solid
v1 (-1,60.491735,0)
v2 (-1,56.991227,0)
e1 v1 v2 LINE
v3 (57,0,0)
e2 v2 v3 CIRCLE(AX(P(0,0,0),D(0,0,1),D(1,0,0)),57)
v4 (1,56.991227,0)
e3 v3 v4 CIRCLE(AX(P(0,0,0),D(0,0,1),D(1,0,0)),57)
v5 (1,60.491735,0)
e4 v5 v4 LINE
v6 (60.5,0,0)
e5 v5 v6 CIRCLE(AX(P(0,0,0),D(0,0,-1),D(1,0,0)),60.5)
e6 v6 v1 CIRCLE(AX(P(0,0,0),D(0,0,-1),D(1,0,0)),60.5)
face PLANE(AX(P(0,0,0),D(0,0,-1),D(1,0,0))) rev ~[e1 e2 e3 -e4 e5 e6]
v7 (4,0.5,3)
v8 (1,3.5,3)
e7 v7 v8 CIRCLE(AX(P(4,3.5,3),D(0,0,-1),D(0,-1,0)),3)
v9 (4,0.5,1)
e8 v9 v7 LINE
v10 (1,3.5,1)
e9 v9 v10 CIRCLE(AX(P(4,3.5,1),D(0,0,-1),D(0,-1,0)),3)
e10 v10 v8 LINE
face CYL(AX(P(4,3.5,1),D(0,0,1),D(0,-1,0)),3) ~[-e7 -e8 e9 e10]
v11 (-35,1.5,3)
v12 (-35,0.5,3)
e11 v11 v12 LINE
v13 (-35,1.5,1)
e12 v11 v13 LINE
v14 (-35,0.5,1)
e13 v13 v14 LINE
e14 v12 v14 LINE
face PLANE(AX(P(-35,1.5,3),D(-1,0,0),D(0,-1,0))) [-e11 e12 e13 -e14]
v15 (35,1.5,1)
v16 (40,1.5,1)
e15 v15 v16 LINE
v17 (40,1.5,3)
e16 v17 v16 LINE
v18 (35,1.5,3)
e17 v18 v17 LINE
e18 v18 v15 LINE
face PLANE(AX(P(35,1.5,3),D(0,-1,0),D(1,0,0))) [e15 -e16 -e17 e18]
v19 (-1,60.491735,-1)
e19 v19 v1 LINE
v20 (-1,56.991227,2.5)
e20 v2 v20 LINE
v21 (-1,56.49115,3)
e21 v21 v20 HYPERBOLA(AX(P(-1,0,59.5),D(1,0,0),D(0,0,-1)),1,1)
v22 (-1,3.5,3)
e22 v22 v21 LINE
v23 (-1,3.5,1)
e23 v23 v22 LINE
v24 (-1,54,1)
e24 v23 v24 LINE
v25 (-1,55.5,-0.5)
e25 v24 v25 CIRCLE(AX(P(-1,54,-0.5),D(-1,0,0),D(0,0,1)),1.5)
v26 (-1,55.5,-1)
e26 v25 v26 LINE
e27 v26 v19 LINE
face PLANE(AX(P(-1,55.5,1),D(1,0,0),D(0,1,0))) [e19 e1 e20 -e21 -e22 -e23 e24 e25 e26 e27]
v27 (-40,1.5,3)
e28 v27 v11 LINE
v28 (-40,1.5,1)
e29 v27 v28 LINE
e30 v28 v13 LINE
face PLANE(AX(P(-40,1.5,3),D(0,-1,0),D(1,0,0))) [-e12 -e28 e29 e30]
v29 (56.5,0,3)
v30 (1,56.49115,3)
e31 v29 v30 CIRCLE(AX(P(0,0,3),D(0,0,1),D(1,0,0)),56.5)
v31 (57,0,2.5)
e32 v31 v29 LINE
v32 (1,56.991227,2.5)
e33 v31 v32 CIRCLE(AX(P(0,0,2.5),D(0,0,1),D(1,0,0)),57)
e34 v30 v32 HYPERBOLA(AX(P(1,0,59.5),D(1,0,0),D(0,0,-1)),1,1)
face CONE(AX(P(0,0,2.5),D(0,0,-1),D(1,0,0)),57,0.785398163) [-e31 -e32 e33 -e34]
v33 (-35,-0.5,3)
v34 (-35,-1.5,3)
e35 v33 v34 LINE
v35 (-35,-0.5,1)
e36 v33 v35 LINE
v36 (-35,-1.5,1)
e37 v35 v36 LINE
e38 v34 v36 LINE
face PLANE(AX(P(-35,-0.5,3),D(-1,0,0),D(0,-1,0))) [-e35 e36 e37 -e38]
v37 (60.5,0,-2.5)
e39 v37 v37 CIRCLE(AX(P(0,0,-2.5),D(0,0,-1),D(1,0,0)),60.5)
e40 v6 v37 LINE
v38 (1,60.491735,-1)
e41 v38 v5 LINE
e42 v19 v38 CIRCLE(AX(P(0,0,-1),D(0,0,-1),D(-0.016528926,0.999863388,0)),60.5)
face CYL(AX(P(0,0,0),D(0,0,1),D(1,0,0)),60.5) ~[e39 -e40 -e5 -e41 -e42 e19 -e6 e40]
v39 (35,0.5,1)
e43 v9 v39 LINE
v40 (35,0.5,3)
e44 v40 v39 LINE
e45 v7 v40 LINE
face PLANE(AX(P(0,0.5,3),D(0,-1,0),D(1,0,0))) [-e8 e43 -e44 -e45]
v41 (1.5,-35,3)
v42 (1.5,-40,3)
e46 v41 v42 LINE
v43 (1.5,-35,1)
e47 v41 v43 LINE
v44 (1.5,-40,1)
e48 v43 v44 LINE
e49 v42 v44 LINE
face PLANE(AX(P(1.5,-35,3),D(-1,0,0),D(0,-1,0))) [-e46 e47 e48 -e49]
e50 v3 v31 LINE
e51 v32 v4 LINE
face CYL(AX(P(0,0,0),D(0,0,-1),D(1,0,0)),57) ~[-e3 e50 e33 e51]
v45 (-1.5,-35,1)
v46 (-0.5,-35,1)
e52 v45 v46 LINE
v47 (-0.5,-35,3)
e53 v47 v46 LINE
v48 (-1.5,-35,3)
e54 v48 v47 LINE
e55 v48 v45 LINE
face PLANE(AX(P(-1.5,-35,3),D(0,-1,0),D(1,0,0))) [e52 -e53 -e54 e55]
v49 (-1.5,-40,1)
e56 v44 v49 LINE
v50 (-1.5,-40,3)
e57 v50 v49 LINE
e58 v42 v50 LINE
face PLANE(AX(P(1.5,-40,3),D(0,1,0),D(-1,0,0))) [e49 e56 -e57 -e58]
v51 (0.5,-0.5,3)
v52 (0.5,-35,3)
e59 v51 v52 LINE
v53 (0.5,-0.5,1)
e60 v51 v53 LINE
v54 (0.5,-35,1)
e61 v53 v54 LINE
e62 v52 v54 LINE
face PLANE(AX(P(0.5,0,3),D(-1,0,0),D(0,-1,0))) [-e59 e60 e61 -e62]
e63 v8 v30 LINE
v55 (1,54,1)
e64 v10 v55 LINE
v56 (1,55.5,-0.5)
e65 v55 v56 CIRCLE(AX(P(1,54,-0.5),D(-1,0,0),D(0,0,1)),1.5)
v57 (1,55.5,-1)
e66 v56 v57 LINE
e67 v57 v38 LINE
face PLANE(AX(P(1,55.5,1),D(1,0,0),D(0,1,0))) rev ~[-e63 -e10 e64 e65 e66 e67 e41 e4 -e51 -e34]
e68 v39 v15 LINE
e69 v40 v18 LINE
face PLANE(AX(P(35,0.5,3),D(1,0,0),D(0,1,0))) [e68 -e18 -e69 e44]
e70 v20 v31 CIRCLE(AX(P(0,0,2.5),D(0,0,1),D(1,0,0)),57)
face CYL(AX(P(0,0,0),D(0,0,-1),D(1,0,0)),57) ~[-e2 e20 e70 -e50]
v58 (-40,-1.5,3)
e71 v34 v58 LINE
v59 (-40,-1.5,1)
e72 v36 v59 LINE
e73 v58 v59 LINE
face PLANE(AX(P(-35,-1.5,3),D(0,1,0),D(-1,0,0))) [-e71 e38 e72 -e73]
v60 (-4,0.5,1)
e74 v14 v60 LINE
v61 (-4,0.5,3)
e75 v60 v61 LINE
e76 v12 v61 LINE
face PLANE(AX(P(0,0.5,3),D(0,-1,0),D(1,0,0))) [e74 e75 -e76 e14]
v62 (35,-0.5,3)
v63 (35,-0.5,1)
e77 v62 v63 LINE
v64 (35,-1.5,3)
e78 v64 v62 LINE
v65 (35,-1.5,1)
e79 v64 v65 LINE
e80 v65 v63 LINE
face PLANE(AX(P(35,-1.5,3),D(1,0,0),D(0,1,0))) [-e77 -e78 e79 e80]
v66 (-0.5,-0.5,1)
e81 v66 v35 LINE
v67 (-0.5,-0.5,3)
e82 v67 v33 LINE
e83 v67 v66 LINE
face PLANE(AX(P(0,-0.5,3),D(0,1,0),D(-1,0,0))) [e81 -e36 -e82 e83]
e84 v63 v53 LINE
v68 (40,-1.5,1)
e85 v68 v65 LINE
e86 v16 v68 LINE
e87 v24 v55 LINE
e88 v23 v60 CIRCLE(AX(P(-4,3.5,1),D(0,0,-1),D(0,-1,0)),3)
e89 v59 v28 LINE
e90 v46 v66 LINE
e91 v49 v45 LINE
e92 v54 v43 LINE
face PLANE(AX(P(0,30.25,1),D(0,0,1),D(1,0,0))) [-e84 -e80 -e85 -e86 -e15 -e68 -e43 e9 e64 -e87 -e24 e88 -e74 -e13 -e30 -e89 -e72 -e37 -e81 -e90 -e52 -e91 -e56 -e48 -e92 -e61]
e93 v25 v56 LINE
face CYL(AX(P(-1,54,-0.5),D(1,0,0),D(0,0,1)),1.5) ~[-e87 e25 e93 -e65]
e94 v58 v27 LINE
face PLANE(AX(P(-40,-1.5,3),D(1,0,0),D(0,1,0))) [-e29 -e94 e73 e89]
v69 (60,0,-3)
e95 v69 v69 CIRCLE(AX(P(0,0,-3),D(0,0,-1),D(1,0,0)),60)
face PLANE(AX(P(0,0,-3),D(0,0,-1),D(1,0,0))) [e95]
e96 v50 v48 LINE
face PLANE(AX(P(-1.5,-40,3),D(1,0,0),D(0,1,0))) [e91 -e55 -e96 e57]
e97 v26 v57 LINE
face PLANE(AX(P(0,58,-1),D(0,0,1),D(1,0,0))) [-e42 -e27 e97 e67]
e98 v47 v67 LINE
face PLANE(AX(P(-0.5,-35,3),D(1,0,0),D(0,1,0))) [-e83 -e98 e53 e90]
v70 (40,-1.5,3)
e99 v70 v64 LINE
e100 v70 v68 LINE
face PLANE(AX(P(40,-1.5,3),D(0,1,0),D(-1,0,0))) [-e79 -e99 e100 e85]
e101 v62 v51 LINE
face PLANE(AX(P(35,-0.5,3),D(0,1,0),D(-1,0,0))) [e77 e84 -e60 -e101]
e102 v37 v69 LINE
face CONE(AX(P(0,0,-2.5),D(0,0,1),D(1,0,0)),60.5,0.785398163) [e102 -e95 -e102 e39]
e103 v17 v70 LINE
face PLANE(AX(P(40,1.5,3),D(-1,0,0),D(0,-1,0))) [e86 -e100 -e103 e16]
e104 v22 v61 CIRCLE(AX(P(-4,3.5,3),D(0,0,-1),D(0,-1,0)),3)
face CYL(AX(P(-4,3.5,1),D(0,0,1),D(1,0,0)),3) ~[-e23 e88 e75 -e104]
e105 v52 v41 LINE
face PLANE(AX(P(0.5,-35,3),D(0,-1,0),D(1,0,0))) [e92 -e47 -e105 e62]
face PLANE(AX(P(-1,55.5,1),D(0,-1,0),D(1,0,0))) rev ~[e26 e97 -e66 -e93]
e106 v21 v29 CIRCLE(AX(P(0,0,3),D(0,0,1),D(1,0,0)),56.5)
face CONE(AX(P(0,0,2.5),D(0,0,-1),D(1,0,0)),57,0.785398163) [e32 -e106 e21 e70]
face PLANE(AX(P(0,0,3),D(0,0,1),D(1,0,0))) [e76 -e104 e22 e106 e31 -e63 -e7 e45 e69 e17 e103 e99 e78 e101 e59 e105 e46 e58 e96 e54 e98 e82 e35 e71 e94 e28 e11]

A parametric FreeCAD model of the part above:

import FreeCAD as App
import Part
import Sketcher

V = App.Vector
Q = App.Units.Quantity


def edges_at(feature, points):
    """Names of the edges that pass closest to the given points."""
    edges = feature.Shape.Edges
    near = lambda p: min(range(len(edges)), key=lambda i: edges[i].distToShape(Part.Vertex(*p))[0])
    return sorted({f"Edge{near(p) + 1}" for p in points})


def add_polygon(sketch, points):
    """Adds a closed chain of lines whose ends are joined by coincident constraints."""
    first, n = sketch.GeometryCount, len(points)
    for a, b in zip(points, points[1:] + points[:1]):
        sketch.addGeometry(Part.LineSegment(App.Vector(*a, 0), App.Vector(*b, 0)), False)
    for i in range(n):
        sketch.addConstraint(Sketcher.Constraint("Coincident", first + i, 2, first + (i + 1) % n, 1))

doc = App.newDocument("Part")
body = doc.addObject("PartDesign::Body", "Body")

# Sketch on XY plane
sketch1 = body.newObject("Sketcher::SketchObject", "Sketch")
sketch1.AttachmentSupport = (doc.getObject("XY_Plane"), [""])
sketch1.MapMode = "FlatFace"
sketch1.addGeometry(Part.Circle(V(0, 0, 0), V(0, 0, 1), 57), False)
sketch1.addConstraint(Sketcher.Constraint("Coincident", 0, 3, -1, 1))
sketch1.addConstraint(Sketcher.Constraint("Diameter", 0, Q("114 mm")))
pad1 = body.newObject("PartDesign::Pad", "Pad")
pad1.Profile = sketch1
pad1.Length = 3

# Sketch on XY plane
sketch2 = body.newObject("Sketcher::SketchObject", "Sketch001")
sketch2.AttachmentSupport = (doc.getObject("XY_Plane"), [""])
sketch2.MapMode = "FlatFace"
sketch2.addGeometry(Part.Circle(V(0, 0, 0), V(0, 0, 1), 60), False)
sketch2.addConstraint(Sketcher.Constraint("Coincident", 0, 3, -1, 1))
sketch2.addConstraint(Sketcher.Constraint("Diameter", 0, Q("121 mm")))
pad2 = body.newObject("PartDesign::Pad", "Pad001")
pad2.Profile = sketch2
pad2.Length = 3
pad2.Reversed = True
doc.recompute()

chamfer = body.newObject("PartDesign::Chamfer", "Chamfer")
chamfer.Base = (pad2, edges_at(pad2, [(-57, 0, 3)]))
chamfer.Size = 0.5
doc.recompute()

chamfer2 = body.newObject("PartDesign::Chamfer", "Chamfer001")
chamfer2.Base = (chamfer, edges_at(chamfer, [(-60.5, 0, -3)]))
chamfer2.Size = 0.5

# Sketch on XY plane
sketch3 = body.newObject("Sketcher::SketchObject", "Sketch002")
sketch3.AttachmentSupport = (doc.getObject("XY_Plane"), [""])
sketch3.MapMode = "FlatFace"
sketch3.AttachmentOffset = App.Placement(V(0, 0, 3), App.Rotation())
add_polygon(sketch3, [(-40, 1.5), (-40, -1.5), (-35, -1.5), (-35, -0.5), (0, -0.5), (0, 0.5), (-35, 0.5), (-35, 1.5)])  # lines 0-7
sketch3.addConstraint(Sketcher.Constraint("Vertical", 0))
sketch3.addConstraint(Sketcher.Constraint("Horizontal", 1))
sketch3.addConstraint(Sketcher.Constraint("Vertical", 2))
sketch3.addConstraint(Sketcher.Constraint("Horizontal", 3))
sketch3.addConstraint(Sketcher.Constraint("Vertical", 4))
sketch3.addConstraint(Sketcher.Constraint("Horizontal", 5))
sketch3.addConstraint(Sketcher.Constraint("Vertical", 6))
sketch3.addConstraint(Sketcher.Constraint("Horizontal", 7))
sketch3.addConstraint(Sketcher.Constraint("Symmetric", 3, 2, 4, 2, -1, 1))
sketch3.addConstraint(Sketcher.Constraint("Symmetric", 1, 2, 6, 2, -1))
sketch3.addConstraint(Sketcher.Constraint("Equal", 2, 4))
sketch3.addConstraint(Sketcher.Constraint("DistanceX", 1, 1, 1, 2, Q("5 mm")))
sketch3.addConstraint(Sketcher.Constraint("DistanceX", 3, 1, 3, 2, Q("35 mm")))
sketch3.addConstraint(Sketcher.Constraint("DistanceY", 0, 2, 0, 1, Q("3 mm")))
pocket1 = body.newObject("PartDesign::Pocket", "Pocket")
pocket1.Profile = sketch3
pocket1.Length = 2
doc.recompute()

polarpattern = body.newObject("PartDesign::PolarPattern", "PolarPattern")
polarpattern.Originals = [pocket1]
polarpattern.Axis = (doc.getObject("Z_Axis"), [""])
polarpattern.Angle = 180
polarpattern.Occurrences = 3
body.Tip = polarpattern

# Sketch on XY plane
sketch4 = body.newObject("Sketcher::SketchObject", "Sketch003")
sketch4.AttachmentSupport = (doc.getObject("XY_Plane"), [""])
sketch4.MapMode = "FlatFace"
sketch4.AttachmentOffset = App.Placement(V(0, 0, 3), App.Rotation())
add_polygon(sketch4, [(-1, 60.5), (-1, 0), (1, 0), (1, 60.5)])  # lines 0-3
sketch4.addConstraint(Sketcher.Constraint("Vertical", 0))
sketch4.addConstraint(Sketcher.Constraint("Horizontal", 1))
sketch4.addConstraint(Sketcher.Constraint("Vertical", 2))
sketch4.addConstraint(Sketcher.Constraint("Horizontal", 3))
sketch4.addConstraint(Sketcher.Constraint("Symmetric", 0, 2, 1, 2, -1, 1))
sketch4.addConstraint(Sketcher.Constraint("DistanceX", 1, 1, 1, 2, Q("2 mm")))
sketch4.addConstraint(Sketcher.Constraint("DistanceY", 0, 2, 0, 1, Q("60.5 mm")))
pocket2 = body.newObject("PartDesign::Pocket", "Pocket001")
pocket2.Profile = sketch4
pocket2.Length = 2

# Sketch on XY plane
sketch5 = body.newObject("Sketcher::SketchObject", "Sketch004")
sketch5.AttachmentSupport = (doc.getObject("XY_Plane"), [""])
sketch5.MapMode = "FlatFace"
sketch5.AttachmentOffset = App.Placement(V(0, 0, 1), App.Rotation())
add_polygon(sketch5, [(-1, 60.5), (-1, 55.5), (1, 55.5), (1, 60.5)])  # lines 0-3
sketch5.addConstraint(Sketcher.Constraint("Vertical", 0))
sketch5.addConstraint(Sketcher.Constraint("Horizontal", 1))
sketch5.addConstraint(Sketcher.Constraint("Vertical", 2))
sketch5.addConstraint(Sketcher.Constraint("Horizontal", 3))
sketch5.addConstraint(Sketcher.Constraint("DistanceX", 1, 1, 1, 2, Q("2 mm")))
sketch5.addConstraint(Sketcher.Constraint("DistanceY", 0, 2, 0, 1, Q("5 mm")))
sketch5.addConstraint(Sketcher.Constraint("DistanceX", 0, 2, -1, 1, Q("1 mm")))
sketch5.addConstraint(Sketcher.Constraint("DistanceY", -1, 1, 0, 2, Q("55.5 mm")))
pocket3 = body.newObject("PartDesign::Pocket", "Pocket002")
pocket3.Profile = sketch5
pocket3.Length = 2
doc.recompute()

fillet = body.newObject("PartDesign::Fillet", "Fillet")
fillet.Base = (pocket3, edges_at(pocket3, [(1, 0.5, 2), (-1, 0.5, 2)]))
fillet.Radius = 3
doc.recompute()

fillet2 = body.newObject("PartDesign::Fillet", "Fillet001")
fillet2.Base = (fillet, edges_at(fillet, [(0, 55.5, 1)]))
fillet2.Radius = 1.5

doc.recompute()
